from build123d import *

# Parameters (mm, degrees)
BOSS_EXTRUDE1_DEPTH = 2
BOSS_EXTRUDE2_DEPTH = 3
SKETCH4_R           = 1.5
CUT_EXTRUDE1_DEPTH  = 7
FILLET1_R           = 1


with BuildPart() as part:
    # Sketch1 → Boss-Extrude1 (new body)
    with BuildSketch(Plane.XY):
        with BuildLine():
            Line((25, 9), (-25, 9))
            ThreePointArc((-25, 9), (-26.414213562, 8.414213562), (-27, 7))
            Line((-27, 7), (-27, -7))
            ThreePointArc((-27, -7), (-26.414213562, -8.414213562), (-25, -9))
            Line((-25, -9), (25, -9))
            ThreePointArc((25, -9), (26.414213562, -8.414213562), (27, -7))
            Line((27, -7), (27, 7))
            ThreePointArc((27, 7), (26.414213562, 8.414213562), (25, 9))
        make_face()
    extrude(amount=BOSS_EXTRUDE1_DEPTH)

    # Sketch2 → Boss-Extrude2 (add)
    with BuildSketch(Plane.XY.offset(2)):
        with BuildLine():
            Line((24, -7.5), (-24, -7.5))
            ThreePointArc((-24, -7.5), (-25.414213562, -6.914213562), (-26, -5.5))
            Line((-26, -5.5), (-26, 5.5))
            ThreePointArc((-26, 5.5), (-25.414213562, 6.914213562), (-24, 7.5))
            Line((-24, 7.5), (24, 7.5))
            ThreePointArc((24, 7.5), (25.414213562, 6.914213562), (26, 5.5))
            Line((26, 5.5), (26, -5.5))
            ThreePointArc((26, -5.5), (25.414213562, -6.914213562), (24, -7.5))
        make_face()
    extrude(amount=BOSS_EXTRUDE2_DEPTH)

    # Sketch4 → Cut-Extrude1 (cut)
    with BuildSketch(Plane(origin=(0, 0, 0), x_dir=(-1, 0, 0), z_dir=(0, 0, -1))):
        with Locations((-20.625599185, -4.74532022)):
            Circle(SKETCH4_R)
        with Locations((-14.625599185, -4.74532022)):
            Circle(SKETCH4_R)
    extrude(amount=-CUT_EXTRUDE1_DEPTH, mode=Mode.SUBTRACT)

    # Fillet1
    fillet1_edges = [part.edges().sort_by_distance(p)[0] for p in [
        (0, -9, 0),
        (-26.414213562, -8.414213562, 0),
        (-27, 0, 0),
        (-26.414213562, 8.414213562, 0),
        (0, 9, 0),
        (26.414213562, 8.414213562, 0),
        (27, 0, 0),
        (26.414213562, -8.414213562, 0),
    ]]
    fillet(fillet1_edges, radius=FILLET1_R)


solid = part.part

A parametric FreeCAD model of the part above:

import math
import FreeCAD as App
import Part
import Sketcher


def edges_at(feature, points):
    """Names of the edges that pass closest to the given points."""
    edges = feature.Shape.Edges
    near = lambda p: min(range(len(edges)), key=lambda i: edges[i].distToShape(Part.Vertex(*p))[0])
    return sorted({f"Edge{near(p) + 1}" for p in points})

doc = App.newDocument("Part")
body = doc.addObject("PartDesign::Body", "Body")

sketch1 = body.newObject("Sketcher::SketchObject", "Sketch")
sketch1.AttachmentSupport = (doc.getObject("XY_Plane"), [""])
sketch1.MapMode = "FlatFace"
sketch1.addGeometry(Part.LineSegment(App.Vector(25, 9, 0), App.Vector(-25, 9, 0)), False)
sketch1.addGeometry(Part.ArcOfCircle(Part.Circle(App.Vector(-25, 7, 0), App.Vector(0, 0, 1), 2), math.radians(90), math.radians(180)), False)
sketch1.addGeometry(Part.LineSegment(App.Vector(-27, 7, 0), App.Vector(-27, -7, 0)), False)
sketch1.addGeometry(Part.ArcOfCircle(Part.Circle(App.Vector(-25, -7, 0), App.Vector(0, 0, 1), 2), math.radians(-180), math.radians(-90)), False)
sketch1.addGeometry(Part.LineSegment(App.Vector(-25, -9, 0), App.Vector(25, -9, 0)), False)
sketch1.addGeometry(Part.ArcOfCircle(Part.Circle(App.Vector(25, -7, 0), App.Vector(0, 0, 1), 2), math.radians(-90), math.radians(0)), False)
sketch1.addGeometry(Part.LineSegment(App.Vector(27, -7, 0), App.Vector(27, 7, 0)), False)
sketch1.addGeometry(Part.ArcOfCircle(Part.Circle(App.Vector(25, 7, 0), App.Vector(0, 0, 1), 2), math.radians(0), math.radians(90)), False)
sketch1.addConstraint(Sketcher.Constraint("Tangent", 0, 2, 1, 1))
sketch1.addConstraint(Sketcher.Constraint("Tangent", 1, 2, 2, 1))
sketch1.addConstraint(Sketcher.Constraint("Tangent", 2, 2, 3, 1))
sketch1.addConstraint(Sketcher.Constraint("Tangent", 3, 2, 4, 1))
sketch1.addConstraint(Sketcher.Constraint("Tangent", 4, 2, 5, 1))
sketch1.addConstraint(Sketcher.Constraint("Tangent", 5, 2, 6, 1))
sketch1.addConstraint(Sketcher.Constraint("Tangent", 6, 2, 7, 1))
sketch1.addConstraint(Sketcher.Constraint("Tangent", 7, 2, 0, 1))
sketch1.addConstraint(Sketcher.Constraint("Horizontal", 0))
sketch1.addConstraint(Sketcher.Constraint("Vertical", 2))
sketch1.addConstraint(Sketcher.Constraint("Horizontal", 4))
sketch1.addConstraint(Sketcher.Constraint("Vertical", 6))
sketch1.addConstraint(Sketcher.Constraint("Equal", 1, 3))
sketch1.addConstraint(Sketcher.Constraint("Equal", 3, 5))
sketch1.addConstraint(Sketcher.Constraint("Equal", 5, 7))
sketch1.addConstraint(Sketcher.Constraint("Symmetric", 1, 3, 5, 3, -1, 1))
sketch1.addConstraint(Sketcher.Constraint("Radius", 1, 2.0))
sketch1.addConstraint(Sketcher.Constraint("DistanceX", 0, 2, 0, 1, 50.0))
sketch1.addConstraint(Sketcher.Constraint("DistanceY", 2, 2, 2, 1, 14.0))
pad1 = body.newObject("PartDesign::Pad", "Pad")
pad1.Profile = sketch1
pad1.Length = 2

sketch2 = body.newObject("Sketcher::SketchObject", "Sketch001")
sketch2.AttachmentSupport = (doc.getObject("XY_Plane"), [""])
sketch2.MapMode = "FlatFace"
sketch2.AttachmentOffset = App.Placement(App.Vector(0, 0, 2), App.Rotation())
sketch2.addGeometry(Part.LineSegment(App.Vector(-24, -7.5, 0), App.Vector(24, -7.5, 0)), False)
sketch2.addGeometry(Part.ArcOfCircle(Part.Circle(App.Vector(24, -5.5, 0), App.Vector(0, 0, 1), 2), math.radians(-90), math.radians(0)), False)
sketch2.addGeometry(Part.LineSegment(App.Vector(26, -5.5, 0), App.Vector(26, 5.5, 0)), False)
sketch2.addGeometry(Part.ArcOfCircle(Part.Circle(App.Vector(24, 5.5, 0), App.Vector(0, 0, 1), 2), math.radians(0), math.radians(90)), False)
sketch2.addGeometry(Part.LineSegment(App.Vector(24, 7.5, 0), App.Vector(-24, 7.5, 0)), False)
sketch2.addGeometry(Part.ArcOfCircle(Part.Circle(App.Vector(-24, 5.5, 0), App.Vector(0, 0, 1), 2), math.radians(90), math.radians(180)), False)
sketch2.addGeometry(Part.LineSegment(App.Vector(-26, 5.5, 0), App.Vector(-26, -5.5, 0)), False)
sketch2.addGeometry(Part.ArcOfCircle(Part.Circle(App.Vector(-24, -5.5, 0), App.Vector(0, 0, 1), 2), math.radians(-180), math.radians(-90)), False)
sketch2.addConstraint(Sketcher.Constraint("Tangent", 0, 2, 1, 1))
sketch2.addConstraint(Sketcher.Constraint("Tangent", 1, 2, 2, 1))
sketch2.addConstraint(Sketcher.Constraint("Tangent", 2, 2, 3, 1))
sketch2.addConstraint(Sketcher.Constraint("Tangent", 3, 2, 4, 1))
sketch2.addConstraint(Sketcher.Constraint("Tangent", 4, 2, 5, 1))
sketch2.addConstraint(Sketcher.Constraint("Tangent", 5, 2, 6, 1))
sketch2.addConstraint(Sketcher.Constraint("Tangent", 6, 2, 7, 1))
sketch2.addConstraint(Sketcher.Constraint("Tangent", 7, 2, 0, 1))
sketch2.addConstraint(Sketcher.Constraint("Horizontal", 0))
sketch2.addConstraint(Sketcher.Constraint("Vertical", 2))
sketch2.addConstraint(Sketcher.Constraint("Horizontal", 4))
sketch2.addConstraint(Sketcher.Constraint("Vertical", 6))
sketch2.addConstraint(Sketcher.Constraint("Equal", 1, 3))
sketch2.addConstraint(Sketcher.Constraint("Equal", 3, 5))
sketch2.addConstraint(Sketcher.Constraint("Equal", 5, 7))
sketch2.addConstraint(Sketcher.Constraint("Symmetric", 1, 3, 5, 3, -1, 1))
sketch2.addConstraint(Sketcher.Constraint("Radius", 1, 2.0))
sketch2.addConstraint(Sketcher.Constraint("DistanceX", 0, 1, 0, 2, 48.0))
sketch2.addConstraint(Sketcher.Constraint("DistanceY", 2, 1, 2, 2, 11.0))
pad2 = body.newObject("PartDesign::Pad", "Pad001")
pad2.Profile = sketch2
pad2.Length = 3

sketch3 = body.newObject("Sketcher::SketchObject", "Sketch002")
sketch3.AttachmentSupport = (doc.getObject("XY_Plane"), [""])
sketch3.MapMode = "FlatFace"
sketch3.addGeometry(Part.Circle(App.Vector(20.6, -4.7, 0), App.Vector(0, 0, 1), 1.5), False)
sketch3.addGeometry(Part.Circle(App.Vector(14.6, -4.7, 0), App.Vector(0, 0, 1), 1.5), False)
sketch3.addConstraint(Sketcher.Constraint("Equal", 0, 1))
sketch3.addConstraint(Sketcher.Constraint("Horizontal", 0, 3, 1, 3))
sketch3.addConstraint(Sketcher.Constraint("Diameter", 0, 3.0))
sketch3.addConstraint(Sketcher.Constraint("DistanceX", 1, 3, 0, 3, 6.0))
sketch3.addConstraint(Sketcher.Constraint("DistanceX", -1, 1, 0, 3, 20.625599))
sketch3.addConstraint(Sketcher.Constraint("DistanceY", 0, 3, -1, 1, 4.74532))
pocket1 = body.newObject("PartDesign::Pocket", "Pocket")
pocket1.Profile = sketch3
pocket1.Length = 7
pocket1.Reversed = True
doc.recompute()

fillet = body.newObject("PartDesign::Fillet", "Fillet")
fillet.Base = (pocket1, edges_at(pocket1, [
    (0, -9, 0),
    (-26.414, -8.414, 0),
    (-27, 0, 0),
    (-26.414, 8.414, 0),
    (0, 9, 0),
    (26.414, 8.414, 0),
    (27, 0, 0),
    (26.414, -8.414, 0),
]))
fillet.Radius = 1

doc.recompute()
